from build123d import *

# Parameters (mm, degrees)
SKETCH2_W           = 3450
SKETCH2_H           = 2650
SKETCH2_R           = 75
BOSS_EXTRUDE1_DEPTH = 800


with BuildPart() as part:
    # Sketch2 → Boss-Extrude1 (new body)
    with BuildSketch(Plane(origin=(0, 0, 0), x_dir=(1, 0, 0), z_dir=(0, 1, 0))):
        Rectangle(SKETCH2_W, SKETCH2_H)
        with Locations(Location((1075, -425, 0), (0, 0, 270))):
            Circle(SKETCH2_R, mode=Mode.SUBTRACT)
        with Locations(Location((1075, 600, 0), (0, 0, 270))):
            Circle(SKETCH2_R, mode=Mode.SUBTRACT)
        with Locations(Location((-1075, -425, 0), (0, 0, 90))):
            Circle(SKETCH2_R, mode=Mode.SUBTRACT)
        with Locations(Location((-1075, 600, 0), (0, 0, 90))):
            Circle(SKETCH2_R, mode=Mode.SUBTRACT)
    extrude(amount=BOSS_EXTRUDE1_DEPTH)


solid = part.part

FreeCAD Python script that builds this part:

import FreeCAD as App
import Part
import Sketcher


def add_polygon(sketch, points):
    """Adds a closed chain of lines whose ends are joined by coincident constraints."""
    first, n = sketch.GeometryCount, len(points)
    for a, b in zip(points, points[1:] + points[:1]):
        sketch.addGeometry(Part.LineSegment(App.Vector(*a, 0), App.Vector(*b, 0)), False)
    for i in range(n):
        sketch.addConstraint(Sketcher.Constraint("Coincident", first + i, 2, first + (i + 1) % n, 1))

doc = App.newDocument("Part")
body = doc.addObject("PartDesign::Body", "Body")

# Sketch on XZ plane
sketch1 = body.newObject("Sketcher::SketchObject", "Sketch")
sketch1.AttachmentSupport = (doc.getObject("XZ_Plane"), [""])
sketch1.MapMode = "FlatFace"
add_polygon(sketch1, [(-1725, -1325), (-1725, 1325), (1725, 1325), (1725, -1325)])  # lines 0-3
sketch1.addGeometry(Part.Circle(App.Vector(-1075, 425, 0), App.Vector(0, 0, 1), 75), False)  # 4
sketch1.addGeometry(Part.Circle(App.Vector(1075, 425, 0), App.Vector(0, 0, 1), 75), False)  # 5
sketch1.addGeometry(Part.Circle(App.Vector(-1075, -600, 0), App.Vector(0, 0, 1), 75), False)  # 6
sketch1.addGeometry(Part.Circle(App.Vector(1075, -600, 0), App.Vector(0, 0, 1), 75), False)  # 7
sketch1.addConstraint(Sketcher.Constraint("Vertical", 0))
sketch1.addConstraint(Sketcher.Constraint("Horizontal", 1))
sketch1.addConstraint(Sketcher.Constraint("Vertical", 2))
sketch1.addConstraint(Sketcher.Constraint("Horizontal", 3))
sketch1.addConstraint(Sketcher.Constraint("Equal", 4, 5))
sketch1.addConstraint(Sketcher.Constraint("Equal", 5, 6))
sketch1.addConstraint(Sketcher.Constraint("Equal", 6, 7))
sketch1.addConstraint(Sketcher.Constraint("Symmetric", 0, 2, 2, 2, -1, 1))
sketch1.addConstraint(Sketcher.Constraint("Symmetric", 4, 3, 5, 3, -2))
sketch1.addConstraint(Sketcher.Constraint("Symmetric", 6, 3, 7, 3, -2))
sketch1.addConstraint(Sketcher.Constraint("Vertical", 4, 3, 6, 3))
sketch1.addConstraint(Sketcher.Constraint("Diameter", 4, 150.0))
sketch1.addConstraint(Sketcher.Constraint("DistanceX", 1, 1, 1, 2, 3450.0))
sketch1.addConstraint(Sketcher.Constraint("DistanceY", 0, 1, 0, 2, 2650.0))
sketch1.addConstraint(Sketcher.Constraint("DistanceX", 4, 3, -1, 1, 1075.0))
sketch1.addConstraint(Sketcher.Constraint("DistanceY", -1, 1, 4, 3, 425.0))
sketch1.addConstraint(Sketcher.Constraint("DistanceY", 6, 3, -1, 1, 600.0))
pad1 = body.newObject("PartDesign::Pad", "Pad")
pad1.Profile = sketch1
pad1.Length = 800
pad1.Reversed = True

doc.recompute()
